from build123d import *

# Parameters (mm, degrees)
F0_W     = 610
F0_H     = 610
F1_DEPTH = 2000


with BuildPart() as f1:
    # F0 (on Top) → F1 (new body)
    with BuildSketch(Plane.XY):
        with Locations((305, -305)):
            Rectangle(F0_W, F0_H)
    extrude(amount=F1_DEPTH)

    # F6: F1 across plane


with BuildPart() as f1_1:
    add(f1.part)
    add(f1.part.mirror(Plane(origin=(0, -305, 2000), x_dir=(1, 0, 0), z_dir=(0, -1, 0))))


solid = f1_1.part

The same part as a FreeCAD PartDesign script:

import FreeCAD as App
import Part
import Sketcher
from FreeCAD import Vector

doc = App.newDocument("Part")
body = doc.addObject("PartDesign::Body", "Body")

# Sketch on XY plane
sketch1 = body.newObject("Sketcher::SketchObject", "Sketch")
sketch1.AttachmentSupport = (doc.getObject("XY_Plane"), [""])
sketch1.MapMode = "FlatFace"
sketch1.addGeometry(Part.LineSegment(Vector(0, 0, 0), Vector(0, -610, 0)), False)
sketch1.addGeometry(Part.LineSegment(Vector(0, -610, 0), Vector(610, -610, 0)), False)
sketch1.addGeometry(Part.LineSegment(Vector(610, -610, 0), Vector(610, 0, 0)), False)
sketch1.addGeometry(Part.LineSegment(Vector(610, 0, 0), Vector(0, 0, 0)), False)
sketch1.addConstraint(Sketcher.Constraint("Coincident", 0, 2, 1, 1))
sketch1.addConstraint(Sketcher.Constraint("Coincident", 1, 2, 2, 1))
sketch1.addConstraint(Sketcher.Constraint("Coincident", 2, 2, 3, 1))
sketch1.addConstraint(Sketcher.Constraint("Coincident", 3, 2, 0, 1))
sketch1.addConstraint(Sketcher.Constraint("Vertical", 0))
sketch1.addConstraint(Sketcher.Constraint("Horizontal", 1))
sketch1.addConstraint(Sketcher.Constraint("Vertical", 2))
sketch1.addConstraint(Sketcher.Constraint("Horizontal", 3))
sketch1.addConstraint(Sketcher.Constraint("Coincident", 3, 2, -1, 1))
sketch1.addConstraint(Sketcher.Constraint("Equal", 3, 0))
sketch1.addConstraint(Sketcher.Constraint("DistanceX", 1, 1, 1, 2, 610.0))
pad1 = body.newObject("PartDesign::Pad", "Pad")
pad1.Profile = sketch1
pad1.Length = 2000
body2 = doc.addObject("PartDesign::Body", "Body001")
doc.recompute()

body2.BaseFeature = body
doc.recompute()

mirroring = doc.addObject("Part::Mirroring", "Mirroring")
mirroring.Source = body
mirroring.Base = Vector(0, -305, 2000)
mirroring.Normal = Vector(0, -1, 0)
body3 = doc.addObject("PartDesign::Body", "Body002")
body3.BaseFeature = mirroring
boolean = body2.newObject("PartDesign::Boolean", "Boolean")
boolean.Type = "Fuse"
boolean.addObjects([body3])
doc.recompute()
mirroring.Visibility = False

doc.recompute()
